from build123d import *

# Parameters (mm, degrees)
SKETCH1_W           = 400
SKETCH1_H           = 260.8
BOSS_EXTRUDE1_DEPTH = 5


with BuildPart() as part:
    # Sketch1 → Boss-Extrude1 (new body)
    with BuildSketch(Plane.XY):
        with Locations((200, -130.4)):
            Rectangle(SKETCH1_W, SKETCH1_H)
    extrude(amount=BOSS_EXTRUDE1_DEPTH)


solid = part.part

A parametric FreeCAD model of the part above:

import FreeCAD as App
import Part
import Sketcher
Q = App.Units.Quantity

doc = App.newDocument("Part")
body = doc.addObject("PartDesign::Body", "Body")

# Sketch on XY plane
sketch1 = body.newObject("Sketcher::SketchObject", "Sketch")
sketch1.AttachmentSupport = (doc.getObject("XY_Plane"), [""])
sketch1.MapMode = "FlatFace"
sketch1.addGeometry(Part.LineSegment(App.Vector(0, 0, 0), App.Vector(0, -261, 0)), False)
sketch1.addGeometry(Part.LineSegment(App.Vector(0, -261, 0), App.Vector(400, -261, 0)), False)
sketch1.addGeometry(Part.LineSegment(App.Vector(400, -261, 0), App.Vector(400, 0, 0)), False)
sketch1.addGeometry(Part.LineSegment(App.Vector(400, 0, 0), App.Vector(0, 0, 0)), False)
sketch1.addConstraint(Sketcher.Constraint("Coincident", 0, 2, 1, 1))
sketch1.addConstraint(Sketcher.Constraint("Coincident", 1, 2, 2, 1))
sketch1.addConstraint(Sketcher.Constraint("Coincident", 2, 2, 3, 1))
sketch1.addConstraint(Sketcher.Constraint("Coincident", 3, 2, 0, 1))
sketch1.addConstraint(Sketcher.Constraint("Vertical", 0))
sketch1.addConstraint(Sketcher.Constraint("Horizontal", 1))
sketch1.addConstraint(Sketcher.Constraint("Vertical", 2))
sketch1.addConstraint(Sketcher.Constraint("Horizontal", 3))
sketch1.addConstraint(Sketcher.Constraint("Coincident", 3, 2, -1, 1))
sketch1.addConstraint(Sketcher.Constraint("DistanceX", 1, 1, 1, 2, Q("400 mm")))
sketch1.addConstraint(Sketcher.Constraint("DistanceY", 0, 2, 0, 1, Q("260.8 mm")))
pad1 = body.newObject("PartDesign::Pad", "Pad")
pad1.Profile = sketch1
pad1.Length = 5

doc.recompute()
